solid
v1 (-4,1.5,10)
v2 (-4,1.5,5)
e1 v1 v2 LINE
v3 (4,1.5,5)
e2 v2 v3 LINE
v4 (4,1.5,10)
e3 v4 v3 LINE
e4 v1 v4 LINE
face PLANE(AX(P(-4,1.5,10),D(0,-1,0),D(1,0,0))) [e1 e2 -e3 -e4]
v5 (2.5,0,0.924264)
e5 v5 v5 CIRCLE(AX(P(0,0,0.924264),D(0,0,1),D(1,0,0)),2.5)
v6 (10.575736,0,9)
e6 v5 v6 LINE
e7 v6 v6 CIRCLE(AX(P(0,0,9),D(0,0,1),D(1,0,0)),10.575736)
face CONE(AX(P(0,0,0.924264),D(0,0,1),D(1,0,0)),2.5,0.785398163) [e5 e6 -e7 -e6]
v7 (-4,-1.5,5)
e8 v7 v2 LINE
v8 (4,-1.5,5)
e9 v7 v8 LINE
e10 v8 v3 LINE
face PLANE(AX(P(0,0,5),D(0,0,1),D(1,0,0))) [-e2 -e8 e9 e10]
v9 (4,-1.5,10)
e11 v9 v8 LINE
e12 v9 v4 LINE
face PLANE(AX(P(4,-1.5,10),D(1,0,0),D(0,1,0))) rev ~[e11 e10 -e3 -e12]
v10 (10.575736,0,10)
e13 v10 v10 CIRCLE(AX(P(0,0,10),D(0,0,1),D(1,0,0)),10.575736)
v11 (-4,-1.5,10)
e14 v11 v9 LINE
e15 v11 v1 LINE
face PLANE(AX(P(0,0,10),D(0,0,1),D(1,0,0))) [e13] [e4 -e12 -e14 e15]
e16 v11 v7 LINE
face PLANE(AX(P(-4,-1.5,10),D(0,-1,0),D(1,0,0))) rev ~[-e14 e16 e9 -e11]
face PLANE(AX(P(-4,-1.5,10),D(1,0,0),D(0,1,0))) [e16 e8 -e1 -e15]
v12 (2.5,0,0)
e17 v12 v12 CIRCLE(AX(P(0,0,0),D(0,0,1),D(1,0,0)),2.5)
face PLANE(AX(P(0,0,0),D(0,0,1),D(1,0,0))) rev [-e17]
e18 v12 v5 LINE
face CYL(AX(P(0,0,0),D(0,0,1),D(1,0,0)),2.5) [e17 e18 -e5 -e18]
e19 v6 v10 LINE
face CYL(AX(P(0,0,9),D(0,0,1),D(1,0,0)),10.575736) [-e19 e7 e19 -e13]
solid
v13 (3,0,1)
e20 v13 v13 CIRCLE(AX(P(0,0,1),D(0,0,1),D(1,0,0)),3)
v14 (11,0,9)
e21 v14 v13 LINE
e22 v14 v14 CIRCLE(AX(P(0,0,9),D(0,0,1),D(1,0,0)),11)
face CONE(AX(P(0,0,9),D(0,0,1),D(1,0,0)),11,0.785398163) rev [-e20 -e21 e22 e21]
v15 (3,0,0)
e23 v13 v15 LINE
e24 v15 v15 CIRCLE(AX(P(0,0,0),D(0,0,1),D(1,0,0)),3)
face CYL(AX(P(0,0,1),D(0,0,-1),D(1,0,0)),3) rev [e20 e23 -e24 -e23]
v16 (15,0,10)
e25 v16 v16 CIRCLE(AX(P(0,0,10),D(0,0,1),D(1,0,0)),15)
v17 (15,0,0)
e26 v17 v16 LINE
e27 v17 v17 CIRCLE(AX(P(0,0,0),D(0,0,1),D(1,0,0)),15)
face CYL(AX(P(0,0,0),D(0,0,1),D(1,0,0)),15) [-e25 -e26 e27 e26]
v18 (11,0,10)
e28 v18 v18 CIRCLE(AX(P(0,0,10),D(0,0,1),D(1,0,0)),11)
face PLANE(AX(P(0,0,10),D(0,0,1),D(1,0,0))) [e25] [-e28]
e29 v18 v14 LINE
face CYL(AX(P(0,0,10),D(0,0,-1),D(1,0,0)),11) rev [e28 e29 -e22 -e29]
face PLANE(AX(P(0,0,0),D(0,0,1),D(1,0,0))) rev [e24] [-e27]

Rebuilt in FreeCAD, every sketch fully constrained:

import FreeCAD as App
import Part
import Sketcher
Q = App.Units.Quantity


def add_polygon(sketch, points):
    """Adds a closed chain of lines whose ends are joined by coincident constraints."""
    first, n = sketch.GeometryCount, len(points)
    for a, b in zip(points, points[1:] + points[:1]):
        sketch.addGeometry(Part.LineSegment(App.Vector(*a, 0), App.Vector(*b, 0)), False)
    for i in range(n):
        sketch.addConstraint(Sketcher.Constraint("Coincident", first + i, 2, first + (i + 1) % n, 1))

doc = App.newDocument("Part")
body = doc.addObject("PartDesign::Body", "Body")
body.AllowCompound = True

# Sketch on XZ plane
sketch1 = body.newObject("Sketcher::SketchObject", "Sketch")
sketch1.AttachmentSupport = (doc.getObject("XZ_Plane"), [""])
sketch1.MapMode = "FlatFace"
add_polygon(sketch1, [(0, 10), (0, 0), (2.5, 0), (2.5, 0.924264), (10.575736, 9), (10.575736, 10)])  # lines 0-5
add_polygon(sketch1, [(3, 1), (3, 0), (15, 0), (15, 10), (11, 10), (11, 9)])  # lines 6-11
sketch1.addConstraint([
    Sketcher.Constraint("Vertical", 0),
    Sketcher.Constraint("Horizontal", 1),
    Sketcher.Constraint("Vertical", 2),
    Sketcher.Constraint("Vertical", 4),
    Sketcher.Constraint("Horizontal", 5),
    Sketcher.Constraint("Vertical", 6),
    Sketcher.Constraint("Horizontal", 7),
    Sketcher.Constraint("Vertical", 8),
    Sketcher.Constraint("Horizontal", 9),
    Sketcher.Constraint("Vertical", 10),
    Sketcher.Constraint("Coincident", 0, 2, -1, 1),
    Sketcher.Constraint("PointOnObject", 6, 2, -1),
    Sketcher.Constraint("Parallel", 3, 11),
    Sketcher.Constraint("Horizontal", 5, 2, 8, 2),
    Sketcher.Constraint("Horizontal", 3, 2, 10, 2),
    Sketcher.Constraint("Equal", 4, 6),
    Sketcher.Constraint("DistanceX", 7, 1, 7, 2, Q("12 mm")),
    Sketcher.Constraint("DistanceX", 9, 2, 9, 1, Q("4 mm")),
    Sketcher.Constraint("DistanceY", 0, 2, 0, 1, Q("10 mm")),
    Sketcher.Constraint("DistanceY", 4, 1, 4, 2, Q("1 mm")),
    Sketcher.Constraint("DistanceX", 1, 1, 1, 2, Q("2.5 mm")),
    Sketcher.Constraint("DistanceX", -1, 1, 6, 2, Q("3 mm")),
    Sketcher.Constraint("DistanceX", 5, 2, 5, 1, Q("10.575736 mm")),
])
revolution = body.newObject("PartDesign::Revolution", "Revolution")
revolution.Profile = sketch1
revolution.ReferenceAxis = (sketch1, ["V_Axis"])
revolution.Angle = 360

# Sketch on XY plane
sketch2 = body.newObject("Sketcher::SketchObject", "Sketch001")
sketch2.AttachmentSupport = (doc.getObject("XY_Plane"), [""])
sketch2.MapMode = "FlatFace"
sketch2.AttachmentOffset = App.Placement(App.Vector(0, 0, 10), App.Rotation())
add_polygon(sketch2, [(-4, 1.5), (-4, -1.5), (4, -1.5), (4, 1.5)])  # lines 0-3
sketch2.addConstraint([
    Sketcher.Constraint("Vertical", 0),
    Sketcher.Constraint("Horizontal", 1),
    Sketcher.Constraint("Vertical", 2),
    Sketcher.Constraint("Horizontal", 3),
    Sketcher.Constraint("Symmetric", 0, 2, 2, 2, -1, 1),
    Sketcher.Constraint("DistanceX", 1, 1, 1, 2, Q("8 mm")),
    Sketcher.Constraint("DistanceY", 0, 2, 0, 1, Q("3 mm")),
])
pocket1 = body.newObject("PartDesign::Pocket", "Pocket")
pocket1.Profile = sketch2
pocket1.Length = 5

doc.recompute()
